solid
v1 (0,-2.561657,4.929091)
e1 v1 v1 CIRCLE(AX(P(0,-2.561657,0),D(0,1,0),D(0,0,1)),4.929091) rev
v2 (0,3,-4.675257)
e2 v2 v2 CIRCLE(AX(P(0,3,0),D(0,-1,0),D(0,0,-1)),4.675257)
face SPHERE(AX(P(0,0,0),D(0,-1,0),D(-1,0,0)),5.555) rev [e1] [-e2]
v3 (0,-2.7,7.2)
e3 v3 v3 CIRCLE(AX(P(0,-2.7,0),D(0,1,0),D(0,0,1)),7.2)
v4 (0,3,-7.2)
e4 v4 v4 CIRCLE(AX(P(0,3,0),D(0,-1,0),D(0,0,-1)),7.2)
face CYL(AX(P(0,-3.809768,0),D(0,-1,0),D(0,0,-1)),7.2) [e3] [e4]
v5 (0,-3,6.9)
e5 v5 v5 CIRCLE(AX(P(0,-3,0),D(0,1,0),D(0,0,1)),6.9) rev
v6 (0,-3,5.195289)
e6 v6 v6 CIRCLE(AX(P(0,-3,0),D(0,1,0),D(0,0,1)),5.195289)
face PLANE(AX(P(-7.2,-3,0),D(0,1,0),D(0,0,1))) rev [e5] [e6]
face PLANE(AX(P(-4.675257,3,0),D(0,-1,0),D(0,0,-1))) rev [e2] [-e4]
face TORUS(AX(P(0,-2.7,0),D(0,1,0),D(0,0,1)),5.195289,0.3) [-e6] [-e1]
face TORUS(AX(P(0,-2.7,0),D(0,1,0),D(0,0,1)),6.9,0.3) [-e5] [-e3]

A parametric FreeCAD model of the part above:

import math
import FreeCAD as App
import Part
import Sketcher
Q = App.Units.Quantity


def edges_at(feature, points):
    """Names of the edges that pass closest to the given points."""
    edges = feature.Shape.Edges
    near = lambda p: min(range(len(edges)), key=lambda i: edges[i].distToShape(Part.Vertex(*p))[0])
    return sorted({f"Edge{near(p) + 1}" for p in points})

doc = App.newDocument("Part")
body = doc.addObject("PartDesign::Body", "Body")

# Sketch on XY plane
sketch1 = doc.addObject("Sketcher::SketchObject", "Sketch")
body.addObject(sketch1)
sketch1.AttachmentSupport = (doc.XY_Plane, [""])
sketch1.MapMode = "FlatFace"
sketch1.addGeometry(Part.LineSegment(App.Vector(-4.7, 3, 0), App.Vector(-7.2, 3, 0)), False)
sketch1.addGeometry(Part.LineSegment(App.Vector(-7.2, 3, 0), App.Vector(-7.2, -3, 0)), False)
sketch1.addGeometry(Part.LineSegment(App.Vector(-7.2, -3, 0), App.Vector(-4.7, -3, 0)), False)
sketch1.addGeometry(Part.ArcOfCircle(Part.Circle(App.Vector(0, 0, 0), App.Vector(0, 0, 1), 5.6), math.radians(147), math.radians(213)), False)
sketch1.addConstraint(Sketcher.Constraint("Coincident", 0, 2, 1, 1))
sketch1.addConstraint(Sketcher.Constraint("Coincident", 1, 2, 2, 1))
sketch1.addConstraint(Sketcher.Constraint("Coincident", 2, 2, 3, 2))
sketch1.addConstraint(Sketcher.Constraint("Coincident", 3, 1, 0, 1))
sketch1.addConstraint(Sketcher.Constraint("Horizontal", 0))
sketch1.addConstraint(Sketcher.Constraint("Vertical", 1))
sketch1.addConstraint(Sketcher.Constraint("Horizontal", 2))
sketch1.addConstraint(Sketcher.Constraint("Coincident", 3, 3, -1, 1))
sketch1.addConstraint(Sketcher.Constraint("Vertical", 2, 2, 3, 1))
sketch1.addConstraint(Sketcher.Constraint("DistanceY", 1, 2, 1, 1, Q("6 mm")))
sketch1.addConstraint(Sketcher.Constraint("Radius", 3, Q("5.555 mm")))
sketch1.addConstraint(Sketcher.Constraint("DistanceX", 0, 2, -1, 1, Q("7.2 mm")))
revolution = doc.addObject("PartDesign::Revolution", "Revolution")
body.addObject(revolution)
revolution.Profile = sketch1
revolution.ReferenceAxis = (sketch1, ["V_Axis"])
revolution.Angle = 360
doc.recompute()

fillet = doc.addObject("PartDesign::Fillet", "Fillet")
body.addObject(fillet)
fillet.Base = (revolution, edges_at(revolution, [(4.675, -3, 0)]))
fillet.Radius = 0.3
doc.recompute()

fillet2 = doc.addObject("PartDesign::Fillet", "Fillet001")
body.addObject(fillet2)
fillet2.Base = (fillet, edges_at(fillet, [(7.2, -3, 0)]))
fillet2.Radius = 0.3

doc.recompute()
